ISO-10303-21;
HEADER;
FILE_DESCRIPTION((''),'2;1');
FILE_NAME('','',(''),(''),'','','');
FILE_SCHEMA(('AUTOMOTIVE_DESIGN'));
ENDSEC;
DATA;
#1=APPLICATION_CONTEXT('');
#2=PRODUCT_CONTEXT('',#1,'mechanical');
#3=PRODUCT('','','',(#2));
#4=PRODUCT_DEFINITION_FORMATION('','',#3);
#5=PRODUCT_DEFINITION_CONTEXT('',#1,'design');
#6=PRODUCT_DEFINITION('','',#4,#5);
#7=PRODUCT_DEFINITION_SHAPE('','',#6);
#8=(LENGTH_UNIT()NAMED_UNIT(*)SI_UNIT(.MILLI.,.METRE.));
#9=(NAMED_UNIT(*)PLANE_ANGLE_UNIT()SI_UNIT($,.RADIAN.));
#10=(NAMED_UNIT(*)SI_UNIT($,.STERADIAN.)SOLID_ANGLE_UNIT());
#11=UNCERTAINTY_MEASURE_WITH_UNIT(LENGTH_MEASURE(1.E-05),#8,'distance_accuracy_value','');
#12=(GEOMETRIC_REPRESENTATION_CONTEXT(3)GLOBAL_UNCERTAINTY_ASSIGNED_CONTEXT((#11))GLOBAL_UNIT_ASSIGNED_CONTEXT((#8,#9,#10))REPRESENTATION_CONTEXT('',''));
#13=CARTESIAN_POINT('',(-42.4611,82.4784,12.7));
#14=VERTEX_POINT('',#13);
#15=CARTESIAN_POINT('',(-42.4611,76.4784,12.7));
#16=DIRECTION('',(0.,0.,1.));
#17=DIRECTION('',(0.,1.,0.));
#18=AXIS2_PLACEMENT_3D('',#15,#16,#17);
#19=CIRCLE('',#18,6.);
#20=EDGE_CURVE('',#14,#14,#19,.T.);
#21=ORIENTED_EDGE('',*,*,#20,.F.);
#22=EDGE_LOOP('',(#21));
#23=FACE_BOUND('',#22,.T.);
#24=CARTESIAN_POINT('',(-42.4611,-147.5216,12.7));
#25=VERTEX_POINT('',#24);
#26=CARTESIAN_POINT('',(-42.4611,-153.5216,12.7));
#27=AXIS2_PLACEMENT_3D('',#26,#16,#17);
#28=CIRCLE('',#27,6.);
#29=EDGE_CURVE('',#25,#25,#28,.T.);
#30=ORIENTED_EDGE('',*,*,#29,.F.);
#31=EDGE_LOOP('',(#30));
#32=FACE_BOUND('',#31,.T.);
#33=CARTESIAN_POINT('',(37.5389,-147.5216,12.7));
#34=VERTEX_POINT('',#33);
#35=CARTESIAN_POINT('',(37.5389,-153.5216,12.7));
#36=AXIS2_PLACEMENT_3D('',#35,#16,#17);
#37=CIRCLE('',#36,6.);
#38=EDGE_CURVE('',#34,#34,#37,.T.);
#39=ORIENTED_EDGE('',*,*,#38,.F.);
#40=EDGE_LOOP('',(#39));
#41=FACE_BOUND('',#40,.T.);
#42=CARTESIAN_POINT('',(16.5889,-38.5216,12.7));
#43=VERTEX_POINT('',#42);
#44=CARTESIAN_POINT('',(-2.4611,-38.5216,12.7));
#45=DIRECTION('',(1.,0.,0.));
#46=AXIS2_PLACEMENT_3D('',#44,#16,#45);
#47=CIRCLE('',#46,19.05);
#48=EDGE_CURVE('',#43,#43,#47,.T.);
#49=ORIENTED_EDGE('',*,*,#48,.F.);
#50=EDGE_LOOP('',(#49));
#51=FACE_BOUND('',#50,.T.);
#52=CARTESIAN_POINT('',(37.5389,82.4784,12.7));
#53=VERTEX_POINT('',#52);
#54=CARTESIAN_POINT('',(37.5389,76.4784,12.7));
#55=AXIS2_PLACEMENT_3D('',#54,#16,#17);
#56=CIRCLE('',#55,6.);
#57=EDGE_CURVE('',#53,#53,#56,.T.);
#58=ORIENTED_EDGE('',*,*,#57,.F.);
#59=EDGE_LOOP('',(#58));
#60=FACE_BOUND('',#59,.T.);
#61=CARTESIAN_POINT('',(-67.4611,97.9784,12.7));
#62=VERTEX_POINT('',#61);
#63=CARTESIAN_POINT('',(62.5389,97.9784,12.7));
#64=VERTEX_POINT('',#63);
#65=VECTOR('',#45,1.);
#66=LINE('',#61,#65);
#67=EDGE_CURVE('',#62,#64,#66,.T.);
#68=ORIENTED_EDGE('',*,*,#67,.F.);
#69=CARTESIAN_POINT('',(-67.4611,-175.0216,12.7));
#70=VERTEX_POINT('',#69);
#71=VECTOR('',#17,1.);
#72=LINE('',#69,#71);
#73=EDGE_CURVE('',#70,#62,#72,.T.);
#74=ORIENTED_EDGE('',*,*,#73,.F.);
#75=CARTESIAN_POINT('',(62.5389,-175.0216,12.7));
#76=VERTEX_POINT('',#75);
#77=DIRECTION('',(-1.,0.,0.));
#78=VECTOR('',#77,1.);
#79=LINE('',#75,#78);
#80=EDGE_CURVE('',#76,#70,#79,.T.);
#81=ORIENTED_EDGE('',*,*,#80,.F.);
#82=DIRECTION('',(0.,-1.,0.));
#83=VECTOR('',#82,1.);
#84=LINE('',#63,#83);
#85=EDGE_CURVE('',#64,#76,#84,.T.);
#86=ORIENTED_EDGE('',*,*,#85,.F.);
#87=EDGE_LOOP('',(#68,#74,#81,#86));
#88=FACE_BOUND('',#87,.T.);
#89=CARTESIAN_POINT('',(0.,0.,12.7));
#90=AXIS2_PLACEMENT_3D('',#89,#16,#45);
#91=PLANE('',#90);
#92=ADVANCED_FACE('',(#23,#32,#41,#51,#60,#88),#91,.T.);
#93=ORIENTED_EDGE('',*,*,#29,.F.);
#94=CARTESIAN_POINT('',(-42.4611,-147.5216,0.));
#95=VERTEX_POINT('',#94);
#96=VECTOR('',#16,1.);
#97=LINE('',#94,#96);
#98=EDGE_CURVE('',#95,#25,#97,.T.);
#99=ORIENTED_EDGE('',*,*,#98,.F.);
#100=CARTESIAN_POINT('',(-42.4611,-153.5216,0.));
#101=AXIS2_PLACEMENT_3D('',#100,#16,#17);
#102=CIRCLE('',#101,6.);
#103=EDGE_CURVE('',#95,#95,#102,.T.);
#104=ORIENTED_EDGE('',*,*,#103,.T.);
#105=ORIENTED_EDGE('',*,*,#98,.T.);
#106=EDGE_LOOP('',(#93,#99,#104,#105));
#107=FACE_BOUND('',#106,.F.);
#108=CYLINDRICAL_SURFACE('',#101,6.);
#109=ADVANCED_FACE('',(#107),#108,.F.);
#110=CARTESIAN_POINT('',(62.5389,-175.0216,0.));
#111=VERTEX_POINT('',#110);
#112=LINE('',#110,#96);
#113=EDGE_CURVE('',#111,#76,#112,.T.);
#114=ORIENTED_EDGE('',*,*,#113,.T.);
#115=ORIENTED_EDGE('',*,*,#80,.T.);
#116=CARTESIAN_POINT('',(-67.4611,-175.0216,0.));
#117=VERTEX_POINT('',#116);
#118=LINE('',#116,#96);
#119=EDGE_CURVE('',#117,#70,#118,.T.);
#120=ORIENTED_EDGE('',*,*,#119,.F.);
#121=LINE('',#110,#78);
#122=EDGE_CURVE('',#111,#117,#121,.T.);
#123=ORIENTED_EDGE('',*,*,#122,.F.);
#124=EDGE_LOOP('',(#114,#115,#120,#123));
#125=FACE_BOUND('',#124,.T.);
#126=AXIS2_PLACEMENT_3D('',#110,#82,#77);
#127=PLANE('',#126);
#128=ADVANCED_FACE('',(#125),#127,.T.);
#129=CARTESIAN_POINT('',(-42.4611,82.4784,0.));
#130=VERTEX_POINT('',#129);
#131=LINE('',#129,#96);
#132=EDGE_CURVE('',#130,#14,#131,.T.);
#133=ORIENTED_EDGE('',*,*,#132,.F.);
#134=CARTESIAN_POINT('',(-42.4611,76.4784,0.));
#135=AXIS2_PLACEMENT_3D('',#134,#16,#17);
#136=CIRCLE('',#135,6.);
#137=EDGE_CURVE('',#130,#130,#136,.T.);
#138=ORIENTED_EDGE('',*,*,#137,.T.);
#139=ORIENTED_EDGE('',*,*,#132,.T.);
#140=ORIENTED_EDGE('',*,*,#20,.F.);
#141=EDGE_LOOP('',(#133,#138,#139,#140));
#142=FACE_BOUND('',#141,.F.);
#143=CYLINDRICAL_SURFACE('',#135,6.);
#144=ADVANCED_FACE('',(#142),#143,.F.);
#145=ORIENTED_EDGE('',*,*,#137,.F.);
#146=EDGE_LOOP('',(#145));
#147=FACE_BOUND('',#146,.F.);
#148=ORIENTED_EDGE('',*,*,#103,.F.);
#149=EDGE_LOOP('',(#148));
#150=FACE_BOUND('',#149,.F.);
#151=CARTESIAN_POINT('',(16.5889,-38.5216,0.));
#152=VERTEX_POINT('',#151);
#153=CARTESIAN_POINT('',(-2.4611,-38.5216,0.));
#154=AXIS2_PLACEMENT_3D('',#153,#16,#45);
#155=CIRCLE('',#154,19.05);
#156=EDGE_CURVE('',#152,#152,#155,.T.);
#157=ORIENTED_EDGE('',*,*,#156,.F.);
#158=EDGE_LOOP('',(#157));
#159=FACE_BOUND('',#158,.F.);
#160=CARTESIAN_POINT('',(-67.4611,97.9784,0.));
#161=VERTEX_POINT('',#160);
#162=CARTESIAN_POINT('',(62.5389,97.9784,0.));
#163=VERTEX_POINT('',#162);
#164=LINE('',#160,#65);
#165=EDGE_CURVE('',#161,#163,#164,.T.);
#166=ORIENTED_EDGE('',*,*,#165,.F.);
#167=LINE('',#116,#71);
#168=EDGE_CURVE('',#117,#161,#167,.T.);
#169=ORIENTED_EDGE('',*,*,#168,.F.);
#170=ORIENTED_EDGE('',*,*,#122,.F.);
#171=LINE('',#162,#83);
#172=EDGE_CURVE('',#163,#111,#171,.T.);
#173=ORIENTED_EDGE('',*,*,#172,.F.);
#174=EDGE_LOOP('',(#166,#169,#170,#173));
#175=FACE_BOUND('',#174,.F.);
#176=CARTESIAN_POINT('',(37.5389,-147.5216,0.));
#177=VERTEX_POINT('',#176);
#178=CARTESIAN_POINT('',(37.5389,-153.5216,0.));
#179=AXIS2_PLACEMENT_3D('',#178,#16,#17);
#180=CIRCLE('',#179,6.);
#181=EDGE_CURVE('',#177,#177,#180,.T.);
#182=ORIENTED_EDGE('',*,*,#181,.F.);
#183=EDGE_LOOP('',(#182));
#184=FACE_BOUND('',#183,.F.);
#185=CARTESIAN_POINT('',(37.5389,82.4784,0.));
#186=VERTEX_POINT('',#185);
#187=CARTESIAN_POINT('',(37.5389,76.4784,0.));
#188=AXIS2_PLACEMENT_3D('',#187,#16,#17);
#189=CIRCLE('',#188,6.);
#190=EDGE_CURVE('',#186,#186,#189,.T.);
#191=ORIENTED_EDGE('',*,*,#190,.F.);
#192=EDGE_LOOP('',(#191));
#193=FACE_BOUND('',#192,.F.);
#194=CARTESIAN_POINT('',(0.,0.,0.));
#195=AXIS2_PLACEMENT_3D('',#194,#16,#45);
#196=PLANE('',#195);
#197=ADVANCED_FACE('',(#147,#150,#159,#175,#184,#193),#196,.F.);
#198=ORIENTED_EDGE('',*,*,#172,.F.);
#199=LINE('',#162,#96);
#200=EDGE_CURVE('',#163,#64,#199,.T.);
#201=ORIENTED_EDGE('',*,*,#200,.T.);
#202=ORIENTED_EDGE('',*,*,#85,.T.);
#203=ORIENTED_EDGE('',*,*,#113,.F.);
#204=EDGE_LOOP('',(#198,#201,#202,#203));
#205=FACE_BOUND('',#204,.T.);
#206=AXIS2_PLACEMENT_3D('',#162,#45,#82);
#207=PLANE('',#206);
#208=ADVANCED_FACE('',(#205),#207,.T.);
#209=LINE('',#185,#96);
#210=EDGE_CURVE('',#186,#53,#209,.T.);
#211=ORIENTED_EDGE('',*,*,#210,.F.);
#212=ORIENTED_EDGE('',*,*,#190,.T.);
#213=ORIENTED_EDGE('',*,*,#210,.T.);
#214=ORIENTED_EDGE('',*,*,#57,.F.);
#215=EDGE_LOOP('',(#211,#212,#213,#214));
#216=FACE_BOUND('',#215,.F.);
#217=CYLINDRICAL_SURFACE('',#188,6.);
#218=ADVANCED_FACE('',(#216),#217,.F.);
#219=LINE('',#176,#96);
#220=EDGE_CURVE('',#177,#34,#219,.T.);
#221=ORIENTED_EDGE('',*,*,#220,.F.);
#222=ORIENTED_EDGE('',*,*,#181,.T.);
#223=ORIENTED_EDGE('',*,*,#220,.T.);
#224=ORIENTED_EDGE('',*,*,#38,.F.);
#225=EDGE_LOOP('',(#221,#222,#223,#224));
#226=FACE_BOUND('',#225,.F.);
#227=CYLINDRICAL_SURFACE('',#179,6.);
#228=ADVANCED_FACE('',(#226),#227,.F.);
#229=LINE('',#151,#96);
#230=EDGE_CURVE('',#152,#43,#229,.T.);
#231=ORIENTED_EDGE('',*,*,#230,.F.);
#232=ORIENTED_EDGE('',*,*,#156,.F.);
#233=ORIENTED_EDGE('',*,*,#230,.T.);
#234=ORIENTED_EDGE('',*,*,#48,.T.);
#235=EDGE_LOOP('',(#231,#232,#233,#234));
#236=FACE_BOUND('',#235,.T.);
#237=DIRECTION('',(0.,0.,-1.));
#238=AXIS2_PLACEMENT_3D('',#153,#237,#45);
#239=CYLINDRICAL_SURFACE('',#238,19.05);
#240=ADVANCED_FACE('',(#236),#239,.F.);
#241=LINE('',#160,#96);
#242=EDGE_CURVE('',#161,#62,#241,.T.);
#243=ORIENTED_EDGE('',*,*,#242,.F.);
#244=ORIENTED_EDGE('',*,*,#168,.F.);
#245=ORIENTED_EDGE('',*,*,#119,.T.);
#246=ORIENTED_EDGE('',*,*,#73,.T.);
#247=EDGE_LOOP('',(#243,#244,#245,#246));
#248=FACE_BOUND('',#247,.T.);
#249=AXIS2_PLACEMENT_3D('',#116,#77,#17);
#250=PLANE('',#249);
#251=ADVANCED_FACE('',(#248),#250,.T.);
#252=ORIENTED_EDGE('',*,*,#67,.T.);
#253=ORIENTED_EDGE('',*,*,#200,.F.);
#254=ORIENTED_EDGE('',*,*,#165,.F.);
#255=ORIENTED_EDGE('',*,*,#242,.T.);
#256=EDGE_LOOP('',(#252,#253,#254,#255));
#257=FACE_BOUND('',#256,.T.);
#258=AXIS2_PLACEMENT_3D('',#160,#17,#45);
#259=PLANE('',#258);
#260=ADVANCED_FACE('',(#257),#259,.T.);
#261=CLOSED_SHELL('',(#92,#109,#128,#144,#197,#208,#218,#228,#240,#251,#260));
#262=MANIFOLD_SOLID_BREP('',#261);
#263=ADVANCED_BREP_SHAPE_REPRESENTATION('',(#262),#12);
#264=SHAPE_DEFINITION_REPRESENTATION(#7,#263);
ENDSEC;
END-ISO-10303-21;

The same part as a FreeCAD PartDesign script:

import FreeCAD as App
import Part
import Sketcher
from FreeCAD import Vector
Q = App.Units.Quantity

doc = App.newDocument("Part")
params = doc.addObject("Spreadsheet::Sheet", "Params")
for row, (alias, value) in enumerate([
    ("sketch1_diameter", "38.1 mm"),
    ("sketch1_width", "130 mm"),
    ("sketch1_height", "273 mm"),
    ("pad1_length", "12.7 mm"),
    ("sketch2_diameter", "12 mm"),
    ("hole_diameter", "12 mm"),
], start=1):
    params.set(f"A{row}", alias)
    params.set(f"B{row}", "=" + value)
    params.setAlias(f"B{row}", alias)

body = doc.addObject("PartDesign::Body", "Body")

# Sketch on XY plane
sketch1 = body.newObject("Sketcher::SketchObject", "Sketch")
sketch1.AttachmentSupport = (doc.getObject("XY_Plane"), [""])
sketch1.MapMode = "FlatFace"
sketch1.addGeometry(Part.LineSegment(Vector(63, 98, 0), Vector(-67, 98, 0)), False)
sketch1.addGeometry(Part.LineSegment(Vector(-67, 98, 0), Vector(-67, -175, 0)), False)
sketch1.addGeometry(Part.LineSegment(Vector(-67, -175, 0), Vector(63, -175, 0)), False)
sketch1.addGeometry(Part.LineSegment(Vector(63, -175, 0), Vector(63, 98, 0)), False)
sketch1.addGeometry(Part.Circle(Vector(-2, -39, 0), Vector(0, 0, 1), 19), False)
sketch1.addConstraint(Sketcher.Constraint("Coincident", 0, 2, 1, 1))
sketch1.addConstraint(Sketcher.Constraint("Coincident", 1, 2, 2, 1))
sketch1.addConstraint(Sketcher.Constraint("Coincident", 2, 2, 3, 1))
sketch1.addConstraint(Sketcher.Constraint("Coincident", 3, 2, 0, 1))
sketch1.addConstraint(Sketcher.Constraint("Horizontal", 0))
sketch1.addConstraint(Sketcher.Constraint("Vertical", 1))
sketch1.addConstraint(Sketcher.Constraint("Horizontal", 2))
sketch1.addConstraint(Sketcher.Constraint("Vertical", 3))
sketch1.addConstraint(Sketcher.Constraint("Diameter", 4, Q("38.1 mm")))
sketch1.addConstraint(Sketcher.Constraint("DistanceX", 0, 2, 0, 1, Q("130 mm")))
sketch1.addConstraint(Sketcher.Constraint("DistanceY", 1, 2, 1, 1, Q("273 mm")))
sketch1.addConstraint(Sketcher.Constraint("DistanceX", 0, 2, 4, 3, Q("65 mm")))
sketch1.addConstraint(Sketcher.Constraint("DistanceY", 4, 3, 0, 2, Q("136.5 mm")))
sketch1.addConstraint(Sketcher.Constraint("DistanceX", 4, 3, -1, 1, Q("2.461 mm")))
sketch1.addConstraint(Sketcher.Constraint("DistanceY", 4, 3, -1, 1, Q("38.5216 mm")))
sketch1.setExpression("Constraints[8]", "Params.sketch1_diameter")
sketch1.setExpression("Constraints[9]", "Params.sketch1_width")
sketch1.setExpression("Constraints[10]", "Params.sketch1_height")
pad1 = body.newObject("PartDesign::Pad", "Pad")
pad1.Profile = sketch1
pad1.setExpression("Length", "Params.pad1_length")

# Sketch on XY plane
sketch2 = body.newObject("Sketcher::SketchObject", "Sketch001")
sketch2.AttachmentSupport = (doc.getObject("XY_Plane"), [""])
sketch2.MapMode = "FlatFace"
sketch2.addGeometry(Part.Circle(Vector(-42, 76, 0), Vector(0, 0, 1), 6), False)
sketch2.addGeometry(Part.Circle(Vector(38, 76, 0), Vector(0, 0, 1), 6), False)
sketch2.addGeometry(Part.Circle(Vector(38, -154, 0), Vector(0, 0, 1), 6), False)
sketch2.addGeometry(Part.Circle(Vector(-42, -154, 0), Vector(0, 0, 1), 6), False)
sketch2.addConstraint(Sketcher.Constraint("Equal", 0, 1))
sketch2.addConstraint(Sketcher.Constraint("Equal", 1, 2))
sketch2.addConstraint(Sketcher.Constraint("Equal", 2, 3))
sketch2.addConstraint(Sketcher.Constraint("Horizontal", 0, 3, 1, 3))
sketch2.addConstraint(Sketcher.Constraint("Horizontal", 2, 3, 3, 3))
sketch2.addConstraint(Sketcher.Constraint("Vertical", 1, 3, 2, 3))
sketch2.addConstraint(Sketcher.Constraint("Vertical", 0, 3, 3, 3))
sketch2.addConstraint(Sketcher.Constraint("Diameter", 0, Q("12 mm")))
sketch2.addConstraint(Sketcher.Constraint("DistanceX", 0, 3, 1, 3, Q("80 mm")))
sketch2.addConstraint(Sketcher.Constraint("DistanceY", 2, 3, 1, 3, Q("230 mm")))
sketch2.addConstraint(Sketcher.Constraint("DistanceX", 0, 3, -1, 1, Q("42.461 mm")))
sketch2.addConstraint(Sketcher.Constraint("DistanceY", -1, 1, 0, 3, Q("76.4784 mm")))
sketch2.setExpression("Constraints[7]", "Params.sketch2_diameter")
doc.recompute()
hole = body.newObject("PartDesign::Hole", "Hole")
hole.Profile = sketch2
hole.ThreadType = "None"
hole.setExpression("Diameter", "Params.hole_diameter")
hole.DepthType = "ThroughAll"
hole.Reversed = True

doc.recompute()
